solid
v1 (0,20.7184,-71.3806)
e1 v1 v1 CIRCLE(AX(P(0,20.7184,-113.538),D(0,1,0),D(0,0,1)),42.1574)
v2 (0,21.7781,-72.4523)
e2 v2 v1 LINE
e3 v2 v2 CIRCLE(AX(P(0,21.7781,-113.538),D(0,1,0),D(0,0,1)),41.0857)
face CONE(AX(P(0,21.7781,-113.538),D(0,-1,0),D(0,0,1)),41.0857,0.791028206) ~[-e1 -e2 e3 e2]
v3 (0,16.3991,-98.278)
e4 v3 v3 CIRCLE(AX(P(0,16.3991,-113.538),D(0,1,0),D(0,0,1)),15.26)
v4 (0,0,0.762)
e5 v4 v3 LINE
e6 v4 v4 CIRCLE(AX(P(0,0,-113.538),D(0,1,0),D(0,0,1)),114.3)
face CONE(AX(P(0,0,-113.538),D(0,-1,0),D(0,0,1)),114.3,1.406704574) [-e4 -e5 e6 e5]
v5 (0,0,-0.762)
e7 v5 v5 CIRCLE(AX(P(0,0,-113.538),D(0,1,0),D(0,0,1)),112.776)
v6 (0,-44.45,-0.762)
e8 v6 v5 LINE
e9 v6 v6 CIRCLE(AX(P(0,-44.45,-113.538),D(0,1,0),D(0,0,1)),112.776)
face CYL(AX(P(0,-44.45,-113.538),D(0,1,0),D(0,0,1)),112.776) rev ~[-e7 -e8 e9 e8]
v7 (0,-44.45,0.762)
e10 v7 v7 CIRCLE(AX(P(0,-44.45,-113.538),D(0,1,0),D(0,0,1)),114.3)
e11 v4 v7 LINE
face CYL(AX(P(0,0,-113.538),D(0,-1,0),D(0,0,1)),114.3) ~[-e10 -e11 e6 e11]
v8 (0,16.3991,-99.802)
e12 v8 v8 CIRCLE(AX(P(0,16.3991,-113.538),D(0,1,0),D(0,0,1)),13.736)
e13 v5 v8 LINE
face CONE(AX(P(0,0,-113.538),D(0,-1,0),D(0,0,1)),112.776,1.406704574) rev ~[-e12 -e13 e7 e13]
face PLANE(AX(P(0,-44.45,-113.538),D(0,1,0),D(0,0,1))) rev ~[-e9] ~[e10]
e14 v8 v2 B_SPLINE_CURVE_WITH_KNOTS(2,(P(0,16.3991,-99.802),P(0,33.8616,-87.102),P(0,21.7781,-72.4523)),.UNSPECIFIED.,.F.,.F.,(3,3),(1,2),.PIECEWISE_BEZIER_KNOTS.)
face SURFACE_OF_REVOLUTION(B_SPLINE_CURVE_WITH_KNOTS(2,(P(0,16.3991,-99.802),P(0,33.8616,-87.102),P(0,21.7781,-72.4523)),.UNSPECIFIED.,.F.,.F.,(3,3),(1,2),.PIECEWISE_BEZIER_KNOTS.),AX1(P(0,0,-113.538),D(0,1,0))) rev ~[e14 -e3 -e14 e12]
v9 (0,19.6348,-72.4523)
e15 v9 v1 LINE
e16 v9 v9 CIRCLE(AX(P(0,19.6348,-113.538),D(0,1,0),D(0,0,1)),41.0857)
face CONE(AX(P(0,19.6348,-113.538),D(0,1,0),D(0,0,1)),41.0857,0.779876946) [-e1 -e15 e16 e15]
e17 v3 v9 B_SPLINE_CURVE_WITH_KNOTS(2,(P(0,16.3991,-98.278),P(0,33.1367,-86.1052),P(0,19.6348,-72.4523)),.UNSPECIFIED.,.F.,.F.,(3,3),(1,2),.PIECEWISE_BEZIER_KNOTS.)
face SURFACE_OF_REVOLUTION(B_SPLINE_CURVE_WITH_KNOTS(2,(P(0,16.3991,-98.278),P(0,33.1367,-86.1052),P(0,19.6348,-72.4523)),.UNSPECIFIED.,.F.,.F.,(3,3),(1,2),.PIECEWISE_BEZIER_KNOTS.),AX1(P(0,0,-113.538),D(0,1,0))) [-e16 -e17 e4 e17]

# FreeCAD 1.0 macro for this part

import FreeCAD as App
import Part
import Sketcher
from FreeCAD import Vector
Q = App.Units.Quantity

doc = App.newDocument("Part")
body = doc.addObject("PartDesign::Body", "Body")

sketch1 = doc.addObject("Sketcher::SketchObject", "Sketch")
body.addObject(sketch1)
sketch1.AttachmentSupport = (doc.YZ_Plane, [""])
sketch1.MapMode = "FlatFace"
sketch1.addGeometry([
    Part.LineSegment(Vector(16.3991, -98.278, 0), Vector(0, 0.762, 0)),
    Part.LineSegment(Vector(0, 0.762, 0), Vector(-44.45, 0.762, 0)),
    Part.LineSegment(Vector(-44.45, 0.762, 0), Vector(-44.45, -0.762, 0)),
    Part.LineSegment(Vector(-44.45, -0.762, 0), Vector(0, -0.762, 0)),
    Part.LineSegment(Vector(0, -0.762, 0), Vector(16.3991, -99.802, 0)),
    Part.BSplineCurve([Vector(16.3991, -99.802, 0), Vector(33.8616, -87.102, 0), Vector(21.7781, -72.4523, 0)], [3, 3], [1, 2], False, 2, [1, 1, 1], False),
    Part.LineSegment(Vector(21.7781, -72.4523, 0), Vector(20.7184, -71.3806, 0)),
    Part.LineSegment(Vector(20.7184, -71.3806, 0), Vector(19.6348, -72.4523, 0)),
    Part.BSplineCurve([Vector(16.3991, -98.278, 0), Vector(33.1367, -86.1052, 0), Vector(19.6348, -72.4523, 0)], [3, 3], [1, 2], False, 2, [1, 1, 1], False),
], False)
sketch1.addGeometry(Part.LineSegment(Vector(-44.45, -113.538, 0), Vector(21.7781, -113.538, 0)), True)
sketch1.addConstraint([
    Sketcher.Constraint("Block", 5),
    Sketcher.Constraint("Block", 8),
    Sketcher.Constraint("Coincident", 0, 2, 1, 1),
    Sketcher.Constraint("Coincident", 1, 2, 2, 1),
    Sketcher.Constraint("Coincident", 2, 2, 3, 1),
    Sketcher.Constraint("Coincident", 3, 2, 4, 1),
    Sketcher.Constraint("Coincident", 4, 2, 5, 1),
    Sketcher.Constraint("Coincident", 5, 2, 6, 1),
    Sketcher.Constraint("Coincident", 6, 2, 7, 1),
    Sketcher.Constraint("Coincident", 7, 2, 8, 2),
    Sketcher.Constraint("Coincident", 8, 1, 0, 1),
    Sketcher.Constraint("Horizontal", 1),
    Sketcher.Constraint("Vertical", 2),
    Sketcher.Constraint("Horizontal", 3),
    Sketcher.Constraint("Horizontal", 9),
    Sketcher.Constraint("PointOnObject", 0, 2, -2),
    Sketcher.Constraint("PointOnObject", 3, 2, -2),
    Sketcher.Constraint("DistanceX", 1, 2, 1, 1, Q("1.75 in")),
    Sketcher.Constraint("DistanceY", 2, 2, 2, 1, Q("0.06 in")),
    Sketcher.Constraint("DistanceY", 9, 1, 1, 2, Q("4.5 in")),
    Sketcher.Constraint("Distance", 7, Q("0.06 in")),
    Sketcher.Constraint("DistanceX", 9, 1, -1, 1, Q("1.75 in")),
    Sketcher.Constraint("DistanceY", -1, 1, 0, 2, Q("0.03 in")),
    Sketcher.Constraint("DistanceX", 9, 1, 9, 2, Q("2.6074 in")),
    Sketcher.Constraint("DistanceY", 7, 2, 6, 2, Q("0.0422 in")),
])
revolution = doc.addObject("PartDesign::Revolution", "Revolution")
body.addObject(revolution)
revolution.Profile = sketch1
revolution.ReferenceAxis = (sketch1, ["Axis0"])
revolution.Angle = 360

doc.recompute()
